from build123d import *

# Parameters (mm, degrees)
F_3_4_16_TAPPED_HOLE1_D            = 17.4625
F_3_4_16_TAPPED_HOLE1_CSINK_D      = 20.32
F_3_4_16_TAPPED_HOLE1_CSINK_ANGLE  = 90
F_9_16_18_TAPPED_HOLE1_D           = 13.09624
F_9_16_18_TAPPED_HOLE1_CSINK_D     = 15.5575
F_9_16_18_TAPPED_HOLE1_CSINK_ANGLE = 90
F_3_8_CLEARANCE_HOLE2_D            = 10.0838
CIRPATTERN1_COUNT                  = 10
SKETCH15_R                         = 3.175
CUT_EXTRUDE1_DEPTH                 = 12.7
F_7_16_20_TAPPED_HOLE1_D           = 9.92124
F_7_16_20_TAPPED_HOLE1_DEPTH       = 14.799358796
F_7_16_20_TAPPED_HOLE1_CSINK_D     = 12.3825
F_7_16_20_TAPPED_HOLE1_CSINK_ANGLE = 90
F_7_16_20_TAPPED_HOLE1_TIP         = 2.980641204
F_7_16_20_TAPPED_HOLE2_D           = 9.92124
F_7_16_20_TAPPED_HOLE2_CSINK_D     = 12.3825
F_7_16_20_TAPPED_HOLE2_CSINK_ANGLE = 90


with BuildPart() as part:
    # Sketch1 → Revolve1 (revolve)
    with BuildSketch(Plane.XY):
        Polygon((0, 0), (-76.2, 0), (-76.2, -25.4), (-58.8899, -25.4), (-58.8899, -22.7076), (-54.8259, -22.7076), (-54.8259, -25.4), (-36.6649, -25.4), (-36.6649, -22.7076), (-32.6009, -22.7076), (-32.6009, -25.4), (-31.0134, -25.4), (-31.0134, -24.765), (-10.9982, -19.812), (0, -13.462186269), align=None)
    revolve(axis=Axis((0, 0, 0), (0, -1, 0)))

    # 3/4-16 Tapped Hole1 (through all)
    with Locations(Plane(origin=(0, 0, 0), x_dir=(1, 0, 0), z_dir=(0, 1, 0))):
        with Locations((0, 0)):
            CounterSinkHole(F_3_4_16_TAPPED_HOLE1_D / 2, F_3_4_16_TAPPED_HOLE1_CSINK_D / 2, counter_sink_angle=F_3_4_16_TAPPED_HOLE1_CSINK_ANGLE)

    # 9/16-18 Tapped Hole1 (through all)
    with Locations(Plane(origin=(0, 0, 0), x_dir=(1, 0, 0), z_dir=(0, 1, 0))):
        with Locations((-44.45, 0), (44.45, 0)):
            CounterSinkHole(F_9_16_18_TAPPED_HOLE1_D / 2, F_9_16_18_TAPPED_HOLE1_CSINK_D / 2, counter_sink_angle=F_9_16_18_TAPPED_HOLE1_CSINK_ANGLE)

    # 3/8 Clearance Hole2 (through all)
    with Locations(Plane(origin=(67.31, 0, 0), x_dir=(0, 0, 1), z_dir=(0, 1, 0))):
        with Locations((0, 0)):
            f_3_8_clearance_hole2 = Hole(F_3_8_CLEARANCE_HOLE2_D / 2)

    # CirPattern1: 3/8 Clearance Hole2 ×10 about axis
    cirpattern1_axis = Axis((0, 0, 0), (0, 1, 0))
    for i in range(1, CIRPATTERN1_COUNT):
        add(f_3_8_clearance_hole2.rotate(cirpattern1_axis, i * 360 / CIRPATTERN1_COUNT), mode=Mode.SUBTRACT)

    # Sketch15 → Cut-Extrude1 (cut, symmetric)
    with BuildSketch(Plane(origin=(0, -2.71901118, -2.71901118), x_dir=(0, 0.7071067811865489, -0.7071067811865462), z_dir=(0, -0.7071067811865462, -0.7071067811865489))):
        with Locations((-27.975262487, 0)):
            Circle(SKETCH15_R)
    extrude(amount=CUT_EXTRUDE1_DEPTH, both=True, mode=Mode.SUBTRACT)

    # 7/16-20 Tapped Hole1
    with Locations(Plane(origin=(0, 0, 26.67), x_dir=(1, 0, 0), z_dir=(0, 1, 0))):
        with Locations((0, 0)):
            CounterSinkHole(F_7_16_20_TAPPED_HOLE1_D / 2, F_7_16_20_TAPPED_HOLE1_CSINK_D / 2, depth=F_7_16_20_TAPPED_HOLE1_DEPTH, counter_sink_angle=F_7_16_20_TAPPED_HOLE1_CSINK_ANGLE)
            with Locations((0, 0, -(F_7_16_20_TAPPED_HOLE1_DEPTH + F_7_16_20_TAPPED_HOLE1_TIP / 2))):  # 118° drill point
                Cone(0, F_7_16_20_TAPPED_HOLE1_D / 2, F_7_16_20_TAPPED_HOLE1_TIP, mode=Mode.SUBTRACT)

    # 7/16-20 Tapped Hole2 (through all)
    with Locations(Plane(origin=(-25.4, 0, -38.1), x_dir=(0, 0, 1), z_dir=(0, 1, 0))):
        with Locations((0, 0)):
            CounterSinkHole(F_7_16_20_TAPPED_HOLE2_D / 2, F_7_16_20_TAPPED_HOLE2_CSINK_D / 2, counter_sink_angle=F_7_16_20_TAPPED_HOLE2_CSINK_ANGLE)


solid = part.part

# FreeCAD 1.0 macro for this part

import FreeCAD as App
import Part
import Sketcher

V = App.Vector
Q = App.Units.Quantity


def add_polygon(sketch, points):
    """Adds a closed chain of lines whose ends are joined by coincident constraints."""
    first, n = sketch.GeometryCount, len(points)
    for a, b in zip(points, points[1:] + points[:1]):
        sketch.addGeometry(Part.LineSegment(App.Vector(*a, 0), App.Vector(*b, 0)), False)
    for i in range(n):
        sketch.addConstraint(Sketcher.Constraint("Coincident", first + i, 2, first + (i + 1) % n, 1))

doc = App.newDocument("Part")
body = doc.addObject("PartDesign::Body", "Body")

# Sketch on XY plane
sketch1 = body.newObject("Sketcher::SketchObject", "Sketch")
sketch1.AttachmentSupport = (doc.getObject("XY_Plane"), [""])
sketch1.MapMode = "FlatFace"
add_polygon(sketch1, [(0, 0), (-76.2, 0), (-76.2, -25.4), (-58.9, -25.4), (-58.9, -22.7), (-54.8, -22.7), (-54.8, -25.4), (-36.7, -25.4), (-36.7, -22.7), (-32.6, -22.7), (-32.6, -25.4), (-31, -25.4), (-31, -24.8), (-11, -19.8), (0, -13.5)])  # lines 0-14
sketch1.addConstraint([
    Sketcher.Constraint("Horizontal", 0),
    Sketcher.Constraint("Vertical", 1),
    Sketcher.Constraint("Horizontal", 2),
    Sketcher.Constraint("Vertical", 3),
    Sketcher.Constraint("Horizontal", 4),
    Sketcher.Constraint("Vertical", 5),
    Sketcher.Constraint("Horizontal", 6),
    Sketcher.Constraint("Vertical", 7),
    Sketcher.Constraint("Horizontal", 8),
    Sketcher.Constraint("Vertical", 9),
    Sketcher.Constraint("Horizontal", 10),
    Sketcher.Constraint("Vertical", 11),
    Sketcher.Constraint("Vertical", 14),
    Sketcher.Constraint("Coincident", 14, 2, -1, 1),
    Sketcher.Constraint("Horizontal", 2, 2, 5, 2),
    Sketcher.Constraint("Horizontal", 4, 2, 7, 2),
    Sketcher.Constraint("Horizontal", 6, 2, 9, 2),
    Sketcher.Constraint("Equal", 4, 8),
    Sketcher.Constraint("DistanceX", 0, 2, 0, 1, Q("3 in")),
    Sketcher.Constraint("DistanceY", 1, 2, 1, 1, Q("1 in")),
    Sketcher.Constraint("Angle", 13, Q("30 deg")),
    Sketcher.Constraint("DistanceX", 4, 1, 4, 2, Q("0.16 in")),
    Sketcher.Constraint("DistanceX", 6, 1, 6, 2, Q("0.715 in")),
    Sketcher.Constraint("DistanceX", 10, 1, 10, 2, Q("0.0625 in")),
    Sketcher.Constraint("DistanceY", 3, 1, 3, 2, Q("0.106 in")),
    Sketcher.Constraint("DistanceY", 11, 1, 11, 2, Q("0.025 in")),
    Sketcher.Constraint("DistanceY", 12, 2, -1, 1, Q("0.78 in")),
    Sketcher.Constraint("DistanceX", 2, 1, 2, 2, Q("0.6815 in")),
    Sketcher.Constraint("DistanceX", 12, 2, -1, 1, Q("0.433 in")),
])
revolution = body.newObject("PartDesign::Revolution", "Revolution")
revolution.Profile = sketch1
revolution.ReferenceAxis = (sketch1, ["V_Axis"])
revolution.Angle = 360

# Sketch on XZ plane
sketch2 = body.newObject("Sketcher::SketchObject", "Sketch001")
sketch2.AttachmentSupport = (doc.getObject("XZ_Plane"), [""])
sketch2.MapMode = "FlatFace"
sketch2.addGeometry(Part.Circle(V(0, 0, 0), V(0, 0, 1), 9), False)
sketch2.addConstraint([
    Sketcher.Constraint("Coincident", 0, 3, -1, 1),
    Sketcher.Constraint("Diameter", 0, Q("0.6875 in")),
])
doc.recompute()
hole = body.newObject("PartDesign::Hole", "Hole")
hole.Profile = sketch2
hole.ThreadType = "None"
hole.Diameter = Q("0.6875 in")
hole.DepthType = "ThroughAll"
hole.HoleCutType = "Countersink"
hole.HoleCutDiameter = Q("0.8 in")
hole.HoleCutCountersinkAngle = 90
hole.Reversed = True

# Sketch on XZ plane
sketch3 = body.newObject("Sketcher::SketchObject", "Sketch002")
sketch3.AttachmentSupport = (doc.getObject("XZ_Plane"), [""])
sketch3.MapMode = "FlatFace"
sketch3.addGeometry([
    Part.Circle(V(-44, 0, 0), V(0, 0, 1), 7),
    Part.Circle(V(44, 0, 0), V(0, 0, 1), 7),
], False)
sketch3.addConstraint([
    Sketcher.Constraint("Equal", 0, 1),
    Sketcher.Constraint("Symmetric", 0, 3, 1, 3, -1, 1),
    Sketcher.Constraint("PointOnObject", 0, 3, -1),
    Sketcher.Constraint("Diameter", 0, Q("0.5156 in")),
    Sketcher.Constraint("DistanceX", 0, 3, 1, 3, Q("3.5 in")),
])
doc.recompute()
hole2 = body.newObject("PartDesign::Hole", "Hole001")
hole2.Profile = sketch3
hole2.ThreadType = "None"
hole2.Diameter = Q("0.5156 in")
hole2.DepthType = "ThroughAll"
hole2.HoleCutType = "Countersink"
hole2.HoleCutDiameter = Q("0.6125 in")
hole2.HoleCutCountersinkAngle = 90
hole2.Reversed = True

# Sketch on XZ plane
sketch4 = body.newObject("Sketcher::SketchObject", "Sketch003")
sketch4.AttachmentSupport = (doc.getObject("XZ_Plane"), [""])
sketch4.MapMode = "FlatFace"
sketch4.addGeometry(Part.Circle(V(67, 0, 0), V(0, 0, 1), 5), False)
sketch4.addConstraint([
    Sketcher.Constraint("PointOnObject", 0, 3, -1),
    Sketcher.Constraint("Diameter", 0, Q("0.397 in")),
    Sketcher.Constraint("DistanceX", -1, 1, 0, 3, Q("2.65 in")),
])
doc.recompute()
hole3 = body.newObject("PartDesign::Hole", "Hole002")
hole3.Profile = sketch4
hole3.ThreadType = "None"
hole3.Diameter = Q("0.397 in")
hole3.DepthType = "ThroughAll"
hole3.Reversed = True
doc.recompute()

polarpattern = body.newObject("PartDesign::PolarPattern", "PolarPattern")
polarpattern.Originals = [hole3]
polarpattern.Axis = (doc.getObject("Y_Axis"), [""])
polarpattern.Angle = 360
polarpattern.Occurrences = 10
body.Tip = polarpattern

# Sketch on an angled plane
sketch5 = body.newObject("Sketcher::SketchObject", "Sketch004")
sketch5.Placement = App.Placement(V(0, -2.719011, -2.719011), App.Rotation(V(0, 0.707106781, -0.707106781), V(0.999999999, 0, 0), V(0, -0.707106781, -0.707106781), "ZXY"))
sketch5.addGeometry(Part.Circle(V(-28, 0, 0), V(0, 0, 1), 3.2), False)
sketch5.addConstraint([
    Sketcher.Constraint("PointOnObject", 0, 3, -1),
    Sketcher.Constraint("Diameter", 0, Q("0.25 in")),
    Sketcher.Constraint("DistanceX", 0, 3, -1, 1, Q("27.975262 mm")),
])
pocket1 = body.newObject("PartDesign::Pocket", "Pocket")
pocket1.Profile = sketch5
pocket1.Length = Q("1 in")
pocket1.Midplane = True

# Sketch on XZ plane
sketch6 = body.newObject("Sketcher::SketchObject", "Sketch005")
sketch6.AttachmentSupport = (doc.getObject("XZ_Plane"), [""])
sketch6.MapMode = "FlatFace"
sketch6.addGeometry(Part.Circle(V(0, 26.7, 0), V(0, 0, 1), 5), False)
sketch6.addConstraint([
    Sketcher.Constraint("PointOnObject", 0, 3, -2),
    Sketcher.Constraint("Diameter", 0, Q("0.3906 in")),
    Sketcher.Constraint("DistanceY", -1, 1, 0, 3, Q("1.05 in")),
])
doc.recompute()
hole4 = body.newObject("PartDesign::Hole", "Hole003")
hole4.Profile = sketch6
hole4.ThreadType = "None"
hole4.Diameter = Q("0.3906 in")
hole4.DepthType = "Dimension"
hole4.Depth = 14.799359
hole4.DrillPoint = "Angled"
hole4.DrillPointAngle = 118
hole4.HoleCutType = "Countersink"
hole4.HoleCutDiameter = Q("0.4875 in")
hole4.HoleCutCountersinkAngle = 90
hole4.Reversed = True

# Sketch on XZ plane
sketch7 = body.newObject("Sketcher::SketchObject", "Sketch006")
sketch7.AttachmentSupport = (doc.getObject("XZ_Plane"), [""])
sketch7.MapMode = "FlatFace"
sketch7.addGeometry(Part.Circle(V(-25.4, -38.1, 0), V(0, 0, 1), 5), False)
sketch7.addConstraint([
    Sketcher.Constraint("DistanceX", 0, 3, -1, 1, Q("1 in")),
    Sketcher.Constraint("Diameter", 0, Q("0.3906 in")),
    Sketcher.Constraint("DistanceY", 0, 3, -1, 1, Q("1.5 in")),
])
doc.recompute()
hole5 = body.newObject("PartDesign::Hole", "Hole004")
hole5.Profile = sketch7
hole5.ThreadType = "None"
hole5.Diameter = Q("0.3906 in")
hole5.DepthType = "ThroughAll"
hole5.HoleCutType = "Countersink"
hole5.HoleCutDiameter = Q("0.4875 in")
hole5.HoleCutCountersinkAngle = 90
hole5.Reversed = True

doc.recompute()
